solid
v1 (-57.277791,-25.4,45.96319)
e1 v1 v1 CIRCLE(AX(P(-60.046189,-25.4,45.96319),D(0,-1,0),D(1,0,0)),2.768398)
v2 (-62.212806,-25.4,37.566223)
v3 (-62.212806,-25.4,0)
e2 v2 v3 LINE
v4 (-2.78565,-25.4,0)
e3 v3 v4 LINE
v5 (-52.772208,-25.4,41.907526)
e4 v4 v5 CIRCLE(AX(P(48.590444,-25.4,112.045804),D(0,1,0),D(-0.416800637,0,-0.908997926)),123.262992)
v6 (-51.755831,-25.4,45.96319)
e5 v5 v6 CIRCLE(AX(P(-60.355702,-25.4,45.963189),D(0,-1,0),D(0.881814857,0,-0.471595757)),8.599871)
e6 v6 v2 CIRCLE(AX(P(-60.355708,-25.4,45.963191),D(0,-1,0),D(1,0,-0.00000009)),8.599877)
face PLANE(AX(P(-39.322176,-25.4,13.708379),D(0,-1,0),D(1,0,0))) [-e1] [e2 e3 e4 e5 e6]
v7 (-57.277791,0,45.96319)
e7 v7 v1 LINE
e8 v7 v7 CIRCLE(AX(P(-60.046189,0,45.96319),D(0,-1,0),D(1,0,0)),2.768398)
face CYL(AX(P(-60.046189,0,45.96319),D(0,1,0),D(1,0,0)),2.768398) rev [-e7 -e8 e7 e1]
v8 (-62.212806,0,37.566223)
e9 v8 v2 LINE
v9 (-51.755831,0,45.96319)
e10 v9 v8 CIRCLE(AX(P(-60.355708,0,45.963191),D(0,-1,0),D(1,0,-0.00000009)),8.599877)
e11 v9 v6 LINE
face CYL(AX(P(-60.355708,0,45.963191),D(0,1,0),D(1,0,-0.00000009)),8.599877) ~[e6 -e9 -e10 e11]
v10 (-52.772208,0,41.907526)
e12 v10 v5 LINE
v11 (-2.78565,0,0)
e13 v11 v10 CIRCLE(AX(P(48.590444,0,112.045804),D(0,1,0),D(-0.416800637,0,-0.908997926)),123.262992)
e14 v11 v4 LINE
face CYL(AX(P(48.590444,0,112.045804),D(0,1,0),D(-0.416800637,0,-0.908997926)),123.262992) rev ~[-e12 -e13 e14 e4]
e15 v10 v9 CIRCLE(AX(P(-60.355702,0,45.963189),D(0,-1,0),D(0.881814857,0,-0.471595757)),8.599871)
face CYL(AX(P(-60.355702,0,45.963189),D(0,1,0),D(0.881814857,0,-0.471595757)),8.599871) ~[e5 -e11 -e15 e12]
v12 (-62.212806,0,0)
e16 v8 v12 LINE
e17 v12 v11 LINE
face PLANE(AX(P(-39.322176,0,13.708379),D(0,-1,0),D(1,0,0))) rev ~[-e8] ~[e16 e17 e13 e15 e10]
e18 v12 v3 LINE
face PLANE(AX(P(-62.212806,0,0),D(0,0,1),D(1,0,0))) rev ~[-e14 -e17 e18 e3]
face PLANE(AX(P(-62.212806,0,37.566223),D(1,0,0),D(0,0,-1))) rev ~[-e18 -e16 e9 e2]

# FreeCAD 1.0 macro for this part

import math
import FreeCAD as App
import Part
import Sketcher

V = App.Vector

doc = App.newDocument("Part")
params = doc.addObject("Spreadsheet::Sheet", "Params")
for row, (alias, value) in enumerate([
    ("pad1_length", "1 in"),
    ("pocket1_length", "1 in"),
], start=1):
    params.set(f"A{row}", alias)
    params.set(f"B{row}", "=" + value)
    params.setAlias(f"B{row}", alias)

body = doc.addObject("PartDesign::Body", "Body")

# Sketch on XZ plane
sketch1 = body.newObject("Sketcher::SketchObject", "Sketch")
sketch1.AttachmentSupport = (doc.getObject("XZ_Plane"), [""])
sketch1.MapMode = "FlatFace"
sketch1.addGeometry(Part.LineSegment(V(-62.2, 0, 0), V(-2.8, 0, 0)), False)
sketch1.addGeometry(Part.ArcOfCircle(Part.Circle(V(48.6, 112, 0), V(0, 0, 1), 123.3), math.radians(-145), math.radians(-115)), False)
sketch1.addGeometry(Part.ArcOfCircle(Part.Circle(V(-60.4, 46, 0), V(0, 0, 1), 8.6), math.radians(-28), math.radians(0)), False)
sketch1.addGeometry(Part.ArcOfCircle(Part.Circle(V(-60.4, 46, 0), V(0, 0, 1), 8.6), math.radians(0), math.radians(258)), False)
sketch1.addGeometry(Part.LineSegment(V(-62.2, 37.6, 0), V(-62.2, 0, 0)), False)
sketch1.addConstraint(Sketcher.Constraint("Coincident", 0, 2, 1, 2))
sketch1.addConstraint(Sketcher.Constraint("Coincident", 1, 1, 2, 1))
sketch1.addConstraint(Sketcher.Constraint("Tangent", 2, 2, 3, 1))
sketch1.addConstraint(Sketcher.Constraint("Coincident", 3, 2, 4, 1))
sketch1.addConstraint(Sketcher.Constraint("Coincident", 4, 2, 0, 1))
sketch1.addConstraint(Sketcher.Constraint("Horizontal", 0))
sketch1.addConstraint(Sketcher.Constraint("Vertical", 4))
sketch1.addConstraint(Sketcher.Constraint("PointOnObject", 0, 2, -1))
sketch1.addConstraint(Sketcher.Constraint("Horizontal", 3, 3, 2, 2))
sketch1.addConstraint(Sketcher.Constraint("Radius", 1, 123.262992))
sketch1.addConstraint(Sketcher.Constraint("Radius", 2, 8.599871))
sketch1.addConstraint(Sketcher.Constraint("Radius", 3, 8.599877))
sketch1.addConstraint(Sketcher.Constraint("DistanceX", 3, 3, 1, 1, 7.5835))
sketch1.addConstraint(Sketcher.Constraint("DistanceX", 3, 2, 3, 3, 1.857098))
sketch1.addConstraint(Sketcher.Constraint("DistanceX", 0, 1, 0, 2, 59.427156))
sketch1.addConstraint(Sketcher.Constraint("DistanceY", 4, 2, 4, 1, 37.566223))
sketch1.addConstraint(Sketcher.Constraint("DistanceX", 0, 2, -1, 1, 2.78565))
pad1 = body.newObject("PartDesign::Pad", "Pad")
pad1.Profile = sketch1
pad1.setExpression("Length", "Params.pad1_length")

# Sketch on XZ plane
sketch2 = body.newObject("Sketcher::SketchObject", "Sketch001")
sketch2.AttachmentSupport = (doc.getObject("XZ_Plane"), [""])
sketch2.MapMode = "FlatFace"
sketch2.addGeometry(Part.Circle(V(-60, 46, 0), V(0, 0, 1), 2.8), False)
sketch2.addConstraint(Sketcher.Constraint("Diameter", 0, 5.536796))
sketch2.addConstraint(Sketcher.Constraint("DistanceX", 0, 3, -1, 1, 60.046189))
sketch2.addConstraint(Sketcher.Constraint("DistanceY", -1, 1, 0, 3, 45.96319))
pocket1 = body.newObject("PartDesign::Pocket", "Pocket")
pocket1.Profile = sketch2
pocket1.setExpression("Length", "Params.pocket1_length")
pocket1.Reversed = True

doc.recompute()
